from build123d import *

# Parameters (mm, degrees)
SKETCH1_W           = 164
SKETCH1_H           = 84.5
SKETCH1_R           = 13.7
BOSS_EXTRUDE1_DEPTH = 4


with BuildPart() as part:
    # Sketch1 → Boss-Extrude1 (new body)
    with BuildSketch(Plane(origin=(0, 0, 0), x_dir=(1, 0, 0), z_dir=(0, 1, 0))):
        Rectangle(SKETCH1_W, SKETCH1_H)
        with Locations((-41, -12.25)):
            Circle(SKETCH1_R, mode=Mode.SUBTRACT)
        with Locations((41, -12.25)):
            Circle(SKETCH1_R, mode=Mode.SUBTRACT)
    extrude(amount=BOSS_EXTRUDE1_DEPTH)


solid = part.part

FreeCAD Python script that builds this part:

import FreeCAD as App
import Part
import Sketcher
Q = App.Units.Quantity

doc = App.newDocument("Part")
params = doc.addObject("Spreadsheet::Sheet", "Params")
for row, (alias, value) in enumerate([
    ("sketch1_diameter", "27.4 mm"),
    ("sketch1_width", "164 mm"),
    ("sketch1_height", "84.5 mm"),
    ("pad1_length", "4 mm"),
], start=1):
    params.set(f"A{row}", alias)
    params.set(f"B{row}", "=" + value)
    params.setAlias(f"B{row}", alias)

body = doc.addObject("PartDesign::Body", "Body")

sketch1 = body.newObject("Sketcher::SketchObject", "Sketch")
sketch1.AttachmentSupport = (doc.getObject("XZ_Plane"), [""])
sketch1.MapMode = "FlatFace"
sketch1.addGeometry([
    Part.LineSegment(App.Vector(-82, -42, 0), App.Vector(-82, 42, 0)),
    Part.LineSegment(App.Vector(-82, 42, 0), App.Vector(82, 42, 0)),
    Part.LineSegment(App.Vector(82, 42, 0), App.Vector(82, -42, 0)),
    Part.LineSegment(App.Vector(82, -42, 0), App.Vector(-82, -42, 0)),
    Part.Circle(App.Vector(-41, 12, 0), App.Vector(0, 0, 1), 14),
    Part.Circle(App.Vector(41, 12, 0), App.Vector(0, 0, 1), 14),
], False)
sketch1.addConstraint([
    Sketcher.Constraint("Coincident", 0, 2, 1, 1),
    Sketcher.Constraint("Coincident", 1, 2, 2, 1),
    Sketcher.Constraint("Coincident", 2, 2, 3, 1),
    Sketcher.Constraint("Coincident", 3, 2, 0, 1),
    Sketcher.Constraint("Vertical", 0),
    Sketcher.Constraint("Horizontal", 1),
    Sketcher.Constraint("Vertical", 2),
    Sketcher.Constraint("Horizontal", 3),
    Sketcher.Constraint("Equal", 4, 5),
    Sketcher.Constraint("Symmetric", 0, 2, 2, 2, -1, 1),
    Sketcher.Constraint("Symmetric", 4, 3, 5, 3, -2),
    Sketcher.Constraint("Diameter", 4, Q("27.4 mm")),
    Sketcher.Constraint("DistanceX", 1, 1, 1, 2, Q("164 mm")),
    Sketcher.Constraint("DistanceY", 0, 1, 0, 2, Q("84.5 mm")),
    Sketcher.Constraint("DistanceX", 4, 3, -1, 1, Q("41 mm")),
    Sketcher.Constraint("DistanceY", 4, 3, 0, 2, Q("30 mm")),
])
sketch1.setExpression("Constraints[11]", "Params.sketch1_diameter")
sketch1.setExpression("Constraints[12]", "Params.sketch1_width")
sketch1.setExpression("Constraints[13]", "Params.sketch1_height")
pad1 = body.newObject("PartDesign::Pad", "Pad")
pad1.Profile = sketch1
pad1.setExpression("Length", "Params.pad1_length")
pad1.Reversed = True

doc.recompute()
